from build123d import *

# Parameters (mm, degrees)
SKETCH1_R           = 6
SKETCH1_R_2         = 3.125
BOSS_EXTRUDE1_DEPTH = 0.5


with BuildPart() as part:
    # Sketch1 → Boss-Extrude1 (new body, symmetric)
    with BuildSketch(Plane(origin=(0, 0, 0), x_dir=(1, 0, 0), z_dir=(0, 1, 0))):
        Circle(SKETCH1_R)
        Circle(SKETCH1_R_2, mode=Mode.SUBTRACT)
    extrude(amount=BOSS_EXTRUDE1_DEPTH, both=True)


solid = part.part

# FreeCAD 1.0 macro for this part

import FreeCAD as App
import Part
import Sketcher
from FreeCAD import Vector

doc = App.newDocument("Part")
body = doc.addObject("PartDesign::Body", "Body")

# Sketch on XZ plane
sketch1 = body.newObject("Sketcher::SketchObject", "Sketch")
sketch1.AttachmentSupport = (doc.getObject("XZ_Plane"), [""])
sketch1.MapMode = "FlatFace"
sketch1.addGeometry([
    Part.Circle(Vector(0, 0, 0), Vector(0, 0, 1), 6),
    Part.Circle(Vector(0, 0, 0), Vector(0, 0, 1), 3.1),
], False)
sketch1.addConstraint([
    Sketcher.Constraint("Coincident", 0, 3, -1, 1),
    Sketcher.Constraint("Coincident", 1, 3, -1, 1),
    Sketcher.Constraint("Diameter", 0, 12.0),
    Sketcher.Constraint("Diameter", 1, 6.25),
])
pad1 = body.newObject("PartDesign::Pad", "Pad")
pad1.Profile = sketch1
pad1.Length = 1
pad1.Midplane = True

doc.recompute()
